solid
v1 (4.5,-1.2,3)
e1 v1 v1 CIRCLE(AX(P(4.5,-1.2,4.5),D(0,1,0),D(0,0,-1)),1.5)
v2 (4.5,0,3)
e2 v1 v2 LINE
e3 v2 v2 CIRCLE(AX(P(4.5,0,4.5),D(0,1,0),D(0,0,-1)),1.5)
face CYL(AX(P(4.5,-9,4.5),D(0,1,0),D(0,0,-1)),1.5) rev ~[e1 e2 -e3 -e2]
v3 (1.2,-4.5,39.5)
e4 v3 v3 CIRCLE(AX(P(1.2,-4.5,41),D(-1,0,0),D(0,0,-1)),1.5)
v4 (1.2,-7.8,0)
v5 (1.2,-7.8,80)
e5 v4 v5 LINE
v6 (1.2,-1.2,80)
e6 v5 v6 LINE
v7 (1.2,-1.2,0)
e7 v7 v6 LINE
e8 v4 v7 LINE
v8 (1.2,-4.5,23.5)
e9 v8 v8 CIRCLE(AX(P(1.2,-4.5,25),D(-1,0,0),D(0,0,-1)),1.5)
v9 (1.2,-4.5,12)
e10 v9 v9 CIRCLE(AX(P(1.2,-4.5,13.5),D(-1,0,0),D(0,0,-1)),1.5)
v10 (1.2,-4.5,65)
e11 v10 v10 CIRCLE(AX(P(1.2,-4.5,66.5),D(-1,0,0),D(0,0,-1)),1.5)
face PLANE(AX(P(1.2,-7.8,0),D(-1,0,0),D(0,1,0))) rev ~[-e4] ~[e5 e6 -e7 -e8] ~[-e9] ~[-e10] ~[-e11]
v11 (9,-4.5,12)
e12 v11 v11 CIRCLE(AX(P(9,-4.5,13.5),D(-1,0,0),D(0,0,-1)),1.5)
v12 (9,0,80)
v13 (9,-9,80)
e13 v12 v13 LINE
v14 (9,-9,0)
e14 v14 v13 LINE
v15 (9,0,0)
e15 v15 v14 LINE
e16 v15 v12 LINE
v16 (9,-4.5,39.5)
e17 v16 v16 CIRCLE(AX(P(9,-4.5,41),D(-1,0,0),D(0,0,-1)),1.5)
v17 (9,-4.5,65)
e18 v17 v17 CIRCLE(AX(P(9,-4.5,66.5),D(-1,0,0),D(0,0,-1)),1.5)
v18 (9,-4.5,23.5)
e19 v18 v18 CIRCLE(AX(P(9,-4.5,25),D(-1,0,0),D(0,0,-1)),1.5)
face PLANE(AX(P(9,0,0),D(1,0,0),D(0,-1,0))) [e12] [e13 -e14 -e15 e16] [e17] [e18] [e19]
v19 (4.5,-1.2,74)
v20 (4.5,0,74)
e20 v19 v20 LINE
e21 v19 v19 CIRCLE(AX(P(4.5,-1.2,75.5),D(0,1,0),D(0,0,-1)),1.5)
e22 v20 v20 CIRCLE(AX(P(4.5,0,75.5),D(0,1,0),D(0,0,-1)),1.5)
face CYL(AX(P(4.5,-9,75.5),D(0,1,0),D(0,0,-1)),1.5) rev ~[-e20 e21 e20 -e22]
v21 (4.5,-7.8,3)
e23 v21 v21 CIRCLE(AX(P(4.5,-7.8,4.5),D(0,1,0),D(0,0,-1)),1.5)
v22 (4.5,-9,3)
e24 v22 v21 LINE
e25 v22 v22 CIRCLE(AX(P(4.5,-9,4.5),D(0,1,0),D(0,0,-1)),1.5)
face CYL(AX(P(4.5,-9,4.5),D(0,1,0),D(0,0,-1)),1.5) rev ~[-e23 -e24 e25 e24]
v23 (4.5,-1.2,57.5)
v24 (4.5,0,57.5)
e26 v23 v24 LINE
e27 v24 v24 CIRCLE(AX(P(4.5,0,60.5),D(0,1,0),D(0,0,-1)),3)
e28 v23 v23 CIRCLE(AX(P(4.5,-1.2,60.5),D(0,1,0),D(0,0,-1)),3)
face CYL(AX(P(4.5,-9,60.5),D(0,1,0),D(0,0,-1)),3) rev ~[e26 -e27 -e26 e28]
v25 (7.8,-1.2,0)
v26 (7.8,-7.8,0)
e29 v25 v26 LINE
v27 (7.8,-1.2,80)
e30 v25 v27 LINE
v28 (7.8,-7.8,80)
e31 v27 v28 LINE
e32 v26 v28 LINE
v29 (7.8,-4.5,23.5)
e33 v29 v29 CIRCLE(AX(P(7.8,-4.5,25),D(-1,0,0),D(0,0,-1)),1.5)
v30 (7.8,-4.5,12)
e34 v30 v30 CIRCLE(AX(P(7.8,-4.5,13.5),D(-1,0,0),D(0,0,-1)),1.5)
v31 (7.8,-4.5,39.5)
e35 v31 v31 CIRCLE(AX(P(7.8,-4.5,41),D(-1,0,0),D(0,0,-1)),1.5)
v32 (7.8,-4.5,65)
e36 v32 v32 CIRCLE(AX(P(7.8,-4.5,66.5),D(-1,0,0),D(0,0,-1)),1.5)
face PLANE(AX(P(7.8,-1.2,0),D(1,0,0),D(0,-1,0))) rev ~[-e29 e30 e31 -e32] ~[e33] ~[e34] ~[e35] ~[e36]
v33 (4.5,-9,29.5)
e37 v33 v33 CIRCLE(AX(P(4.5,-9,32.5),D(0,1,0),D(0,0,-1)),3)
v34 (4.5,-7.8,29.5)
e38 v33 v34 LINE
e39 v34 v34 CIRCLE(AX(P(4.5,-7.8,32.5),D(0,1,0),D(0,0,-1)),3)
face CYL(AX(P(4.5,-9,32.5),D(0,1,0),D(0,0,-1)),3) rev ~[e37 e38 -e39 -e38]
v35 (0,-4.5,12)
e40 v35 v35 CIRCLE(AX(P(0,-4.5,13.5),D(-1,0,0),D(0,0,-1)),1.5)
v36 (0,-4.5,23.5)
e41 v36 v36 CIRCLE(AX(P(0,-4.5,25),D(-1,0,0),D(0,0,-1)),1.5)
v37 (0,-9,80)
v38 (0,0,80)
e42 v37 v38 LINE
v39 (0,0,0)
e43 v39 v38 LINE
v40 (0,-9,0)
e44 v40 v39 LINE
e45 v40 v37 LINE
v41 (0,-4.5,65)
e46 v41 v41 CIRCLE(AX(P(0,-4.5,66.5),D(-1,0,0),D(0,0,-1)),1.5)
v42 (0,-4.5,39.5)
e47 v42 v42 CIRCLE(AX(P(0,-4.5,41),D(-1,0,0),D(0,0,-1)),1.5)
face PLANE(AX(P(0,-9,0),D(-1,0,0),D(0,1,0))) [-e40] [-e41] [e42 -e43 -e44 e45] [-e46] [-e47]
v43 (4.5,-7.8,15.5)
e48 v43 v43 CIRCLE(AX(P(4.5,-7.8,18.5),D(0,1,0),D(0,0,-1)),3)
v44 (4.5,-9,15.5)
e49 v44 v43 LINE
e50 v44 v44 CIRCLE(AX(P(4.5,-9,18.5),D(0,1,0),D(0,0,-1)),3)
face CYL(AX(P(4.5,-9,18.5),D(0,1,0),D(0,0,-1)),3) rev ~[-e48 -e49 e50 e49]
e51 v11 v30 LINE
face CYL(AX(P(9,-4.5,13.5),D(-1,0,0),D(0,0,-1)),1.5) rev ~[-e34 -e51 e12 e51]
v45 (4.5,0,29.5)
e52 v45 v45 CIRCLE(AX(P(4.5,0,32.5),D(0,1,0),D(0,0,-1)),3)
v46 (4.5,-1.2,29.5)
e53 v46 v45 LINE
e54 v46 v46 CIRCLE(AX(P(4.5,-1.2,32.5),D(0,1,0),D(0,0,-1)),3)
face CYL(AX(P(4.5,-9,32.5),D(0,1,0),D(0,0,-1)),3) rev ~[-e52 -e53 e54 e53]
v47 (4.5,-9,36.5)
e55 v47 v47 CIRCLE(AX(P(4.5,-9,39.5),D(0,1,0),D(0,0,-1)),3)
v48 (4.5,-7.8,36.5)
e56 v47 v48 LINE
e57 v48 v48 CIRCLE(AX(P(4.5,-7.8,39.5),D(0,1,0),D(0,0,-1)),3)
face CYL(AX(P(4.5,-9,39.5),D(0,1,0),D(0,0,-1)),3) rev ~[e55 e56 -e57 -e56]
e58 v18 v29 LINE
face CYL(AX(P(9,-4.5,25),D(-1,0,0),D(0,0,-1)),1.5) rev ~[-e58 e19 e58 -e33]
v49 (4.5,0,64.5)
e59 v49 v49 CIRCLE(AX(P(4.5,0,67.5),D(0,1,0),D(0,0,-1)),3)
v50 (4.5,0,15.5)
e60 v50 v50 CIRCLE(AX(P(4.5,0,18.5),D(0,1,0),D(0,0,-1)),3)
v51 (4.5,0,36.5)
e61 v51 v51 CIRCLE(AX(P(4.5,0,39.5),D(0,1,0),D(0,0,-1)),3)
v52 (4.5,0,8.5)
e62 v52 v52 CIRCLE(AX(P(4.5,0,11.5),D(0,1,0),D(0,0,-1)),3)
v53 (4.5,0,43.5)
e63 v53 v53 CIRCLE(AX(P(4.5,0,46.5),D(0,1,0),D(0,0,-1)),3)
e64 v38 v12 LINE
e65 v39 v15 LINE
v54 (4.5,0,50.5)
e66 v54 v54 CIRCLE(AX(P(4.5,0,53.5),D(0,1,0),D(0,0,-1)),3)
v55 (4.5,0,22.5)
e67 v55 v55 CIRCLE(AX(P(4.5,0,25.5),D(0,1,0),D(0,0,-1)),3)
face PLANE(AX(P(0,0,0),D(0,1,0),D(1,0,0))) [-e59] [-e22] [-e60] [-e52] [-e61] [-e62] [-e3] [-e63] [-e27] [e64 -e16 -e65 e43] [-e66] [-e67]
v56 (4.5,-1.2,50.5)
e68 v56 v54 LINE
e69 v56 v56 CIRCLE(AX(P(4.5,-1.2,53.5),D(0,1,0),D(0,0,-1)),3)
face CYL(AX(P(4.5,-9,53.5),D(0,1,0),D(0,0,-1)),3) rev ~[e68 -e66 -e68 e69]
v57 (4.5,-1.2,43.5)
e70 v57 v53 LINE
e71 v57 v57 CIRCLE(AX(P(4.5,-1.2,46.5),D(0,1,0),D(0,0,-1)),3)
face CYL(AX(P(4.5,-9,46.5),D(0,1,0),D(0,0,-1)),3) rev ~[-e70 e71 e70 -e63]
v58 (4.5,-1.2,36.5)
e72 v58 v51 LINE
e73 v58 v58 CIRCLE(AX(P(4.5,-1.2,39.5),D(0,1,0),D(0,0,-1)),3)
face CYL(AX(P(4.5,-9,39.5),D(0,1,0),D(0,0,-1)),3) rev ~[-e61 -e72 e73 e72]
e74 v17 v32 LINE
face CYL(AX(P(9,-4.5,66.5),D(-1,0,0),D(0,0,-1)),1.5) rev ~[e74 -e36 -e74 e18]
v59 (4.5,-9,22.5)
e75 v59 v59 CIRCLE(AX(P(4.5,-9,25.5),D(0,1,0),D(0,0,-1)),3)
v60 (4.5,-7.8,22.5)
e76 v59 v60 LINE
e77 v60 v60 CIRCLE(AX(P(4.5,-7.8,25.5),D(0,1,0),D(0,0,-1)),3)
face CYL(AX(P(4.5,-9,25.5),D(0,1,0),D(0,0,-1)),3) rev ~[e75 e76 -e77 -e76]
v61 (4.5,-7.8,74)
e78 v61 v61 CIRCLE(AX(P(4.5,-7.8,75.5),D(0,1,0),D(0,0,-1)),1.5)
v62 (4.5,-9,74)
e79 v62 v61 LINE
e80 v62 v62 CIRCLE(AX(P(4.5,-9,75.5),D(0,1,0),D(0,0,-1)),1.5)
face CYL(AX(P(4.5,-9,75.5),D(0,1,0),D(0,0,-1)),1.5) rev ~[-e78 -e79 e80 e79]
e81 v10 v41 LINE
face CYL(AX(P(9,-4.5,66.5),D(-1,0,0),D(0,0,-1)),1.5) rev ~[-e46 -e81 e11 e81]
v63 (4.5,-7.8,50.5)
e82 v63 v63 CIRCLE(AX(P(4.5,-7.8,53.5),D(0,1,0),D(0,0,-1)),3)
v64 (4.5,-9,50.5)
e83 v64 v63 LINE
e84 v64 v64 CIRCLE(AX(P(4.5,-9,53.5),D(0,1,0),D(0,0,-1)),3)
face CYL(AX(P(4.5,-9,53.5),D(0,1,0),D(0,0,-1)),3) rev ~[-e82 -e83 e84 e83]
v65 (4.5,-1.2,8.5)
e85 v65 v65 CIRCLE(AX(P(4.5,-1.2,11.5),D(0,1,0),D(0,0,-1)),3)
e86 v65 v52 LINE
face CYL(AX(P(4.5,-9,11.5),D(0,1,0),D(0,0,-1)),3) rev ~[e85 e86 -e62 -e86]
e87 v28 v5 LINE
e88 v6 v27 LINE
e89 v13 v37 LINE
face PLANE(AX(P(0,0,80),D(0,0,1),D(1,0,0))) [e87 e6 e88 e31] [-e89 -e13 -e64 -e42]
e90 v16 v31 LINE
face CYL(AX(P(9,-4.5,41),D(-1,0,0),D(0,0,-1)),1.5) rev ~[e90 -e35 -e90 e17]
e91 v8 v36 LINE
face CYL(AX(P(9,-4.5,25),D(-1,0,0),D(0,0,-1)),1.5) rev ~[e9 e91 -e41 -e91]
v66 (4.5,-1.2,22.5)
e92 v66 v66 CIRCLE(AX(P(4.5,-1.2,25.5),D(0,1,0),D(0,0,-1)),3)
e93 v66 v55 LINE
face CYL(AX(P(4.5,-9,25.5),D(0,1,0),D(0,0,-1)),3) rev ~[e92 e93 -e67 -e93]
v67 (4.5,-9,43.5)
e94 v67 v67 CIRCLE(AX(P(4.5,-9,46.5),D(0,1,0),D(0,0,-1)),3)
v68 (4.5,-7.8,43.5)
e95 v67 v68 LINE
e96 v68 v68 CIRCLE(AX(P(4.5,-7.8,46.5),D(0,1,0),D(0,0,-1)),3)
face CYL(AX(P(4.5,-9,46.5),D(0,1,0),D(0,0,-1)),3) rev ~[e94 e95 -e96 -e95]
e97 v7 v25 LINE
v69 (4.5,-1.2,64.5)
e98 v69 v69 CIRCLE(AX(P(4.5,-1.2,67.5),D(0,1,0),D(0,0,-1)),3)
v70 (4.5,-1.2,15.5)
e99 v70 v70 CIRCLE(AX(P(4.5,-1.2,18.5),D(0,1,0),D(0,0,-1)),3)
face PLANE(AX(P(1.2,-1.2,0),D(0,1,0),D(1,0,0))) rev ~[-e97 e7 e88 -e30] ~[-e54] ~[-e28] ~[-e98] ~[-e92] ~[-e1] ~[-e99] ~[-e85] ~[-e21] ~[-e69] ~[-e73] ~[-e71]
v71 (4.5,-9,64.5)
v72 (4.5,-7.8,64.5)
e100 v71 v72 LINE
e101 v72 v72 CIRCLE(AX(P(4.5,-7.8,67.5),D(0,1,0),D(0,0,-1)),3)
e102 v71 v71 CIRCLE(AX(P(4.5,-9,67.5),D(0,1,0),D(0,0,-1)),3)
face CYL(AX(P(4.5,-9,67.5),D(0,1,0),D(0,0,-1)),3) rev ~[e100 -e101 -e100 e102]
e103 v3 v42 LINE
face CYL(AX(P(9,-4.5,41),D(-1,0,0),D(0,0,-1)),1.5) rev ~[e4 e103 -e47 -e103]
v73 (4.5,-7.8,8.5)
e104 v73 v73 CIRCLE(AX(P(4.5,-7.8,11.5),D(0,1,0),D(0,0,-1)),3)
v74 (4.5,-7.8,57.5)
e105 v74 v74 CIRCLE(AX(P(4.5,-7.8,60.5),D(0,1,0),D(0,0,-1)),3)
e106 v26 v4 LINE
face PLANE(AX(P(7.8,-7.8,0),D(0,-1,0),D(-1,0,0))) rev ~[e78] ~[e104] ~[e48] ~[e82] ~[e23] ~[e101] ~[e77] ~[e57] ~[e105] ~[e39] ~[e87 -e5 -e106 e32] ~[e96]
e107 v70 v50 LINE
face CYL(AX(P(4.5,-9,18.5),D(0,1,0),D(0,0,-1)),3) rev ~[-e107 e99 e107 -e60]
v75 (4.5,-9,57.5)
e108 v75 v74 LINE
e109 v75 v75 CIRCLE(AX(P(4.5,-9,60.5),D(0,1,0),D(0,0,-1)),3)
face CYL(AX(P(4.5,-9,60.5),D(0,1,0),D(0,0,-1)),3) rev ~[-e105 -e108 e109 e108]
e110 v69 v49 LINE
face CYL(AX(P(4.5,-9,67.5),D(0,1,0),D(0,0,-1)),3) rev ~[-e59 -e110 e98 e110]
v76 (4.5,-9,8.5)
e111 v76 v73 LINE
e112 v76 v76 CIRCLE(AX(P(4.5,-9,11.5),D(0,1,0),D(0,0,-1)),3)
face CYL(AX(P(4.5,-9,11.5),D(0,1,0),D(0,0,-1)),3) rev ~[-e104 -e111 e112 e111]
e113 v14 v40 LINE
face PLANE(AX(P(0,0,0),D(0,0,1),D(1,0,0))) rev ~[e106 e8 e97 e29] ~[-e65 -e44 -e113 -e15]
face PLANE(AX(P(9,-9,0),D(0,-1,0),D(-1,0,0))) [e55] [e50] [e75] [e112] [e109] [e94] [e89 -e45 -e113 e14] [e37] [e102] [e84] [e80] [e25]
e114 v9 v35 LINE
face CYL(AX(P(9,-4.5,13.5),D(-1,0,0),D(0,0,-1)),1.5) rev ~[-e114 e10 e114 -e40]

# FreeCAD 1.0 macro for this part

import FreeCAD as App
import Part
import Sketcher
Q = App.Units.Quantity

doc = App.newDocument("Part")
body = doc.addObject("PartDesign::Body", "Body")

# Sketch on XY plane
sketch1 = doc.addObject("Sketcher::SketchObject", "Sketch")
body.addObject(sketch1)
sketch1.AttachmentSupport = (doc.XY_Plane, [""])
sketch1.MapMode = "FlatFace"
sketch1.addGeometry(Part.LineSegment(App.Vector(9, 0, 0), App.Vector(0, 0, 0)), False)
sketch1.addGeometry(Part.LineSegment(App.Vector(0, 0, 0), App.Vector(0, -9, 0)), False)
sketch1.addGeometry(Part.LineSegment(App.Vector(0, -9, 0), App.Vector(9, -9, 0)), False)
sketch1.addGeometry(Part.LineSegment(App.Vector(9, -9, 0), App.Vector(9, 0, 0)), False)
sketch1.addGeometry(Part.LineSegment(App.Vector(1.2, -7.8, 0), App.Vector(1.2, -1.2, 0)), False)
sketch1.addGeometry(Part.LineSegment(App.Vector(1.2, -1.2, 0), App.Vector(7.8, -1.2, 0)), False)
sketch1.addGeometry(Part.LineSegment(App.Vector(7.8, -1.2, 0), App.Vector(7.8, -7.8, 0)), False)
sketch1.addGeometry(Part.LineSegment(App.Vector(7.8, -7.8, 0), App.Vector(1.2, -7.8, 0)), False)
sketch1.addConstraint(Sketcher.Constraint("Coincident", 0, 2, 1, 1))
sketch1.addConstraint(Sketcher.Constraint("Coincident", 1, 2, 2, 1))
sketch1.addConstraint(Sketcher.Constraint("Coincident", 2, 2, 3, 1))
sketch1.addConstraint(Sketcher.Constraint("Coincident", 3, 2, 0, 1))
sketch1.addConstraint(Sketcher.Constraint("Coincident", 4, 2, 5, 1))
sketch1.addConstraint(Sketcher.Constraint("Coincident", 5, 2, 6, 1))
sketch1.addConstraint(Sketcher.Constraint("Coincident", 6, 2, 7, 1))
sketch1.addConstraint(Sketcher.Constraint("Coincident", 7, 2, 4, 1))
sketch1.addConstraint(Sketcher.Constraint("Horizontal", 0))
sketch1.addConstraint(Sketcher.Constraint("Vertical", 1))
sketch1.addConstraint(Sketcher.Constraint("Horizontal", 2))
sketch1.addConstraint(Sketcher.Constraint("Vertical", 3))
sketch1.addConstraint(Sketcher.Constraint("Vertical", 4))
sketch1.addConstraint(Sketcher.Constraint("Horizontal", 5))
sketch1.addConstraint(Sketcher.Constraint("Vertical", 6))
sketch1.addConstraint(Sketcher.Constraint("Horizontal", 7))
sketch1.addConstraint(Sketcher.Constraint("Coincident", 0, 2, -1, 1))
sketch1.addConstraint(Sketcher.Constraint("Equal", 2, 1))
sketch1.addConstraint(Sketcher.Constraint("Equal", 7, 4))
sketch1.addConstraint(Sketcher.Constraint("DistanceX", 0, 2, 0, 1, Q("9 mm")))
sketch1.addConstraint(Sketcher.Constraint("DistanceX", 5, 1, 5, 2, Q("6.6 mm")))
sketch1.addConstraint(Sketcher.Constraint("DistanceX", -1, 1, 4, 2, Q("1.2 mm")))
sketch1.addConstraint(Sketcher.Constraint("DistanceY", 4, 2, -1, 1, Q("1.2 mm")))
pad1 = doc.addObject("PartDesign::Pad", "Pad")
body.addObject(pad1)
pad1.Profile = sketch1
pad1.Length = 80

# Sketch on YZ plane
sketch2 = doc.addObject("Sketcher::SketchObject", "Sketch001")
body.addObject(sketch2)
sketch2.AttachmentSupport = (doc.YZ_Plane, [""])
sketch2.MapMode = "FlatFace"
sketch2.AttachmentOffset = App.Placement(App.Vector(0, 0, 9), App.Rotation())
sketch2.addGeometry(Part.Circle(App.Vector(-4.5, 41, 0), App.Vector(0, 0, 1), 1.5), False)
sketch2.addGeometry(Part.Circle(App.Vector(-4.5, 25, 0), App.Vector(0, 0, 1), 1.5), False)
sketch2.addConstraint(Sketcher.Constraint("Equal", 0, 1))
sketch2.addConstraint(Sketcher.Constraint("Vertical", 0, 3, 1, 3))
sketch2.addConstraint(Sketcher.Constraint("Diameter", 0, Q("3 mm")))
sketch2.addConstraint(Sketcher.Constraint("DistanceY", -1, 1, 0, 3, Q("41 mm")))
sketch2.addConstraint(Sketcher.Constraint("DistanceY", -1, 1, 1, 3, Q("25 mm")))
sketch2.addConstraint(Sketcher.Constraint("DistanceX", 0, 3, -1, 1, Q("4.5 mm")))
doc.recompute()
hole = doc.addObject("PartDesign::Hole", "Hole")
body.addObject(hole)
hole.Profile = sketch2
hole.ThreadType = "None"
hole.Diameter = 3
hole.DepthType = "ThroughAll"

# Sketch on XZ plane
sketch3 = doc.addObject("Sketcher::SketchObject", "Sketch002")
body.addObject(sketch3)
sketch3.AttachmentSupport = (doc.XZ_Plane, [""])
sketch3.MapMode = "FlatFace"
sketch3.AttachmentOffset = App.Placement(App.Vector(0, 0, 9), App.Rotation())
sketch3.addGeometry(Part.Circle(App.Vector(4.5, 4.5, 0), App.Vector(0, 0, 1), 1.5), False)
sketch3.addGeometry(Part.Circle(App.Vector(4.5, 75.5, 0), App.Vector(0, 0, 1), 1.5), False)
sketch3.addConstraint(Sketcher.Constraint("Equal", 0, 1))
sketch3.addConstraint(Sketcher.Constraint("Vertical", 0, 3, 1, 3))
sketch3.addConstraint(Sketcher.Constraint("Diameter", 0, Q("3 mm")))
sketch3.addConstraint(Sketcher.Constraint("DistanceY", 0, 3, 1, 3, Q("71 mm")))
sketch3.addConstraint(Sketcher.Constraint("DistanceX", -1, 1, 0, 3, Q("4.5 mm")))
sketch3.addConstraint(Sketcher.Constraint("DistanceY", -1, 1, 0, 3, Q("4.5 mm")))
doc.recompute()
hole2 = doc.addObject("PartDesign::Hole", "Hole001")
body.addObject(hole2)
hole2.Profile = sketch3
hole2.ThreadType = "None"
hole2.Diameter = 3
hole2.DepthType = "ThroughAll"

# Sketch on YZ plane
sketch4 = doc.addObject("Sketcher::SketchObject", "Sketch003")
body.addObject(sketch4)
sketch4.AttachmentSupport = (doc.YZ_Plane, [""])
sketch4.MapMode = "FlatFace"
sketch4.AttachmentOffset = App.Placement(App.Vector(0, 0, 9), App.Rotation())
sketch4.addGeometry(Part.Circle(App.Vector(-4.5, 13.5, 0), App.Vector(0, 0, 1), 1.5), False)
sketch4.addGeometry(Part.Circle(App.Vector(-4.5, 66.5, 0), App.Vector(0, 0, 1), 1.5), False)
sketch4.addConstraint(Sketcher.Constraint("Equal", 0, 1))
sketch4.addConstraint(Sketcher.Constraint("Vertical", 0, 3, 1, 3))
sketch4.addConstraint(Sketcher.Constraint("Diameter", 0, Q("3 mm")))
sketch4.addConstraint(Sketcher.Constraint("DistanceY", 0, 3, 1, 3, Q("53 mm")))
sketch4.addConstraint(Sketcher.Constraint("DistanceX", 0, 3, -1, 1, Q("4.5 mm")))
sketch4.addConstraint(Sketcher.Constraint("DistanceY", -1, 1, 0, 3, Q("13.5 mm")))
doc.recompute()
hole3 = doc.addObject("PartDesign::Hole", "Hole002")
body.addObject(hole3)
hole3.Profile = sketch4
hole3.ThreadType = "None"
hole3.Diameter = 3
hole3.DepthType = "ThroughAll"

# Sketch on XZ plane
sketch5 = doc.addObject("Sketcher::SketchObject", "Sketch004")
body.addObject(sketch5)
sketch5.AttachmentSupport = (doc.XZ_Plane, [""])
sketch5.MapMode = "FlatFace"
sketch5.AttachmentOffset = App.Placement(App.Vector(0, 0, 9), App.Rotation())
sketch5.addGeometry(Part.Circle(App.Vector(4.5, 11.5, 0), App.Vector(0, 0, 1), 3), False)
sketch5.addGeometry(Part.Circle(App.Vector(4.5, 18.5, 0), App.Vector(0, 0, 1), 3), False)
sketch5.addGeometry(Part.Circle(App.Vector(4.5, 25.5, 0), App.Vector(0, 0, 1), 3), False)
sketch5.addGeometry(Part.Circle(App.Vector(4.5, 32.5, 0), App.Vector(0, 0, 1), 3), False)
sketch5.addGeometry(Part.Circle(App.Vector(4.5, 39.5, 0), App.Vector(0, 0, 1), 3), False)
sketch5.addGeometry(Part.Circle(App.Vector(4.5, 46.5, 0), App.Vector(0, 0, 1), 3), False)
sketch5.addGeometry(Part.Circle(App.Vector(4.5, 53.5, 0), App.Vector(0, 0, 1), 3), False)
sketch5.addGeometry(Part.Circle(App.Vector(4.5, 60.5, 0), App.Vector(0, 0, 1), 3), False)
sketch5.addGeometry(Part.Circle(App.Vector(4.5, 67.5, 0), App.Vector(0, 0, 1), 3), False)
sketch5.addConstraint(Sketcher.Constraint("Equal", 0, 1))
sketch5.addConstraint(Sketcher.Constraint("Equal", 1, 2))
sketch5.addConstraint(Sketcher.Constraint("Equal", 2, 3))
sketch5.addConstraint(Sketcher.Constraint("Equal", 3, 4))
sketch5.addConstraint(Sketcher.Constraint("Equal", 4, 5))
sketch5.addConstraint(Sketcher.Constraint("Equal", 5, 6))
sketch5.addConstraint(Sketcher.Constraint("Equal", 6, 7))
sketch5.addConstraint(Sketcher.Constraint("Equal", 7, 8))
sketch5.addConstraint(Sketcher.Constraint("Vertical", 0, 3, 1, 3))
sketch5.addConstraint(Sketcher.Constraint("Vertical", 1, 3, 2, 3))
sketch5.addConstraint(Sketcher.Constraint("Vertical", 2, 3, 3, 3))
sketch5.addConstraint(Sketcher.Constraint("Vertical", 3, 3, 4, 3))
sketch5.addConstraint(Sketcher.Constraint("Vertical", 4, 3, 5, 3))
sketch5.addConstraint(Sketcher.Constraint("Vertical", 5, 3, 6, 3))
sketch5.addConstraint(Sketcher.Constraint("Vertical", 6, 3, 7, 3))
sketch5.addConstraint(Sketcher.Constraint("Vertical", 7, 3, 8, 3))
sketch5.addConstraint(Sketcher.Constraint("Diameter", 0, Q("6 mm")))
sketch5.addConstraint(Sketcher.Constraint("DistanceY", 0, 3, 1, 3, Q("7 mm")))
sketch5.addConstraint(Sketcher.Constraint("DistanceY", 1, 3, 2, 3, Q("7 mm")))
sketch5.addConstraint(Sketcher.Constraint("DistanceY", 2, 3, 3, 3, Q("7 mm")))
sketch5.addConstraint(Sketcher.Constraint("DistanceY", 3, 3, 4, 3, Q("7 mm")))
sketch5.addConstraint(Sketcher.Constraint("DistanceY", 4, 3, 5, 3, Q("7 mm")))
sketch5.addConstraint(Sketcher.Constraint("DistanceY", 5, 3, 6, 3, Q("7 mm")))
sketch5.addConstraint(Sketcher.Constraint("DistanceY", 6, 3, 7, 3, Q("7 mm")))
sketch5.addConstraint(Sketcher.Constraint("DistanceY", 7, 3, 8, 3, Q("7 mm")))
sketch5.addConstraint(Sketcher.Constraint("DistanceX", -1, 1, 0, 3, Q("4.5 mm")))
sketch5.addConstraint(Sketcher.Constraint("DistanceY", -1, 1, 0, 3, Q("11.5 mm")))
doc.recompute()
hole4 = doc.addObject("PartDesign::Hole", "Hole003")
body.addObject(hole4)
hole4.Profile = sketch5
hole4.ThreadType = "None"
hole4.Diameter = 6
hole4.DepthType = "ThroughAll"

doc.recompute()
